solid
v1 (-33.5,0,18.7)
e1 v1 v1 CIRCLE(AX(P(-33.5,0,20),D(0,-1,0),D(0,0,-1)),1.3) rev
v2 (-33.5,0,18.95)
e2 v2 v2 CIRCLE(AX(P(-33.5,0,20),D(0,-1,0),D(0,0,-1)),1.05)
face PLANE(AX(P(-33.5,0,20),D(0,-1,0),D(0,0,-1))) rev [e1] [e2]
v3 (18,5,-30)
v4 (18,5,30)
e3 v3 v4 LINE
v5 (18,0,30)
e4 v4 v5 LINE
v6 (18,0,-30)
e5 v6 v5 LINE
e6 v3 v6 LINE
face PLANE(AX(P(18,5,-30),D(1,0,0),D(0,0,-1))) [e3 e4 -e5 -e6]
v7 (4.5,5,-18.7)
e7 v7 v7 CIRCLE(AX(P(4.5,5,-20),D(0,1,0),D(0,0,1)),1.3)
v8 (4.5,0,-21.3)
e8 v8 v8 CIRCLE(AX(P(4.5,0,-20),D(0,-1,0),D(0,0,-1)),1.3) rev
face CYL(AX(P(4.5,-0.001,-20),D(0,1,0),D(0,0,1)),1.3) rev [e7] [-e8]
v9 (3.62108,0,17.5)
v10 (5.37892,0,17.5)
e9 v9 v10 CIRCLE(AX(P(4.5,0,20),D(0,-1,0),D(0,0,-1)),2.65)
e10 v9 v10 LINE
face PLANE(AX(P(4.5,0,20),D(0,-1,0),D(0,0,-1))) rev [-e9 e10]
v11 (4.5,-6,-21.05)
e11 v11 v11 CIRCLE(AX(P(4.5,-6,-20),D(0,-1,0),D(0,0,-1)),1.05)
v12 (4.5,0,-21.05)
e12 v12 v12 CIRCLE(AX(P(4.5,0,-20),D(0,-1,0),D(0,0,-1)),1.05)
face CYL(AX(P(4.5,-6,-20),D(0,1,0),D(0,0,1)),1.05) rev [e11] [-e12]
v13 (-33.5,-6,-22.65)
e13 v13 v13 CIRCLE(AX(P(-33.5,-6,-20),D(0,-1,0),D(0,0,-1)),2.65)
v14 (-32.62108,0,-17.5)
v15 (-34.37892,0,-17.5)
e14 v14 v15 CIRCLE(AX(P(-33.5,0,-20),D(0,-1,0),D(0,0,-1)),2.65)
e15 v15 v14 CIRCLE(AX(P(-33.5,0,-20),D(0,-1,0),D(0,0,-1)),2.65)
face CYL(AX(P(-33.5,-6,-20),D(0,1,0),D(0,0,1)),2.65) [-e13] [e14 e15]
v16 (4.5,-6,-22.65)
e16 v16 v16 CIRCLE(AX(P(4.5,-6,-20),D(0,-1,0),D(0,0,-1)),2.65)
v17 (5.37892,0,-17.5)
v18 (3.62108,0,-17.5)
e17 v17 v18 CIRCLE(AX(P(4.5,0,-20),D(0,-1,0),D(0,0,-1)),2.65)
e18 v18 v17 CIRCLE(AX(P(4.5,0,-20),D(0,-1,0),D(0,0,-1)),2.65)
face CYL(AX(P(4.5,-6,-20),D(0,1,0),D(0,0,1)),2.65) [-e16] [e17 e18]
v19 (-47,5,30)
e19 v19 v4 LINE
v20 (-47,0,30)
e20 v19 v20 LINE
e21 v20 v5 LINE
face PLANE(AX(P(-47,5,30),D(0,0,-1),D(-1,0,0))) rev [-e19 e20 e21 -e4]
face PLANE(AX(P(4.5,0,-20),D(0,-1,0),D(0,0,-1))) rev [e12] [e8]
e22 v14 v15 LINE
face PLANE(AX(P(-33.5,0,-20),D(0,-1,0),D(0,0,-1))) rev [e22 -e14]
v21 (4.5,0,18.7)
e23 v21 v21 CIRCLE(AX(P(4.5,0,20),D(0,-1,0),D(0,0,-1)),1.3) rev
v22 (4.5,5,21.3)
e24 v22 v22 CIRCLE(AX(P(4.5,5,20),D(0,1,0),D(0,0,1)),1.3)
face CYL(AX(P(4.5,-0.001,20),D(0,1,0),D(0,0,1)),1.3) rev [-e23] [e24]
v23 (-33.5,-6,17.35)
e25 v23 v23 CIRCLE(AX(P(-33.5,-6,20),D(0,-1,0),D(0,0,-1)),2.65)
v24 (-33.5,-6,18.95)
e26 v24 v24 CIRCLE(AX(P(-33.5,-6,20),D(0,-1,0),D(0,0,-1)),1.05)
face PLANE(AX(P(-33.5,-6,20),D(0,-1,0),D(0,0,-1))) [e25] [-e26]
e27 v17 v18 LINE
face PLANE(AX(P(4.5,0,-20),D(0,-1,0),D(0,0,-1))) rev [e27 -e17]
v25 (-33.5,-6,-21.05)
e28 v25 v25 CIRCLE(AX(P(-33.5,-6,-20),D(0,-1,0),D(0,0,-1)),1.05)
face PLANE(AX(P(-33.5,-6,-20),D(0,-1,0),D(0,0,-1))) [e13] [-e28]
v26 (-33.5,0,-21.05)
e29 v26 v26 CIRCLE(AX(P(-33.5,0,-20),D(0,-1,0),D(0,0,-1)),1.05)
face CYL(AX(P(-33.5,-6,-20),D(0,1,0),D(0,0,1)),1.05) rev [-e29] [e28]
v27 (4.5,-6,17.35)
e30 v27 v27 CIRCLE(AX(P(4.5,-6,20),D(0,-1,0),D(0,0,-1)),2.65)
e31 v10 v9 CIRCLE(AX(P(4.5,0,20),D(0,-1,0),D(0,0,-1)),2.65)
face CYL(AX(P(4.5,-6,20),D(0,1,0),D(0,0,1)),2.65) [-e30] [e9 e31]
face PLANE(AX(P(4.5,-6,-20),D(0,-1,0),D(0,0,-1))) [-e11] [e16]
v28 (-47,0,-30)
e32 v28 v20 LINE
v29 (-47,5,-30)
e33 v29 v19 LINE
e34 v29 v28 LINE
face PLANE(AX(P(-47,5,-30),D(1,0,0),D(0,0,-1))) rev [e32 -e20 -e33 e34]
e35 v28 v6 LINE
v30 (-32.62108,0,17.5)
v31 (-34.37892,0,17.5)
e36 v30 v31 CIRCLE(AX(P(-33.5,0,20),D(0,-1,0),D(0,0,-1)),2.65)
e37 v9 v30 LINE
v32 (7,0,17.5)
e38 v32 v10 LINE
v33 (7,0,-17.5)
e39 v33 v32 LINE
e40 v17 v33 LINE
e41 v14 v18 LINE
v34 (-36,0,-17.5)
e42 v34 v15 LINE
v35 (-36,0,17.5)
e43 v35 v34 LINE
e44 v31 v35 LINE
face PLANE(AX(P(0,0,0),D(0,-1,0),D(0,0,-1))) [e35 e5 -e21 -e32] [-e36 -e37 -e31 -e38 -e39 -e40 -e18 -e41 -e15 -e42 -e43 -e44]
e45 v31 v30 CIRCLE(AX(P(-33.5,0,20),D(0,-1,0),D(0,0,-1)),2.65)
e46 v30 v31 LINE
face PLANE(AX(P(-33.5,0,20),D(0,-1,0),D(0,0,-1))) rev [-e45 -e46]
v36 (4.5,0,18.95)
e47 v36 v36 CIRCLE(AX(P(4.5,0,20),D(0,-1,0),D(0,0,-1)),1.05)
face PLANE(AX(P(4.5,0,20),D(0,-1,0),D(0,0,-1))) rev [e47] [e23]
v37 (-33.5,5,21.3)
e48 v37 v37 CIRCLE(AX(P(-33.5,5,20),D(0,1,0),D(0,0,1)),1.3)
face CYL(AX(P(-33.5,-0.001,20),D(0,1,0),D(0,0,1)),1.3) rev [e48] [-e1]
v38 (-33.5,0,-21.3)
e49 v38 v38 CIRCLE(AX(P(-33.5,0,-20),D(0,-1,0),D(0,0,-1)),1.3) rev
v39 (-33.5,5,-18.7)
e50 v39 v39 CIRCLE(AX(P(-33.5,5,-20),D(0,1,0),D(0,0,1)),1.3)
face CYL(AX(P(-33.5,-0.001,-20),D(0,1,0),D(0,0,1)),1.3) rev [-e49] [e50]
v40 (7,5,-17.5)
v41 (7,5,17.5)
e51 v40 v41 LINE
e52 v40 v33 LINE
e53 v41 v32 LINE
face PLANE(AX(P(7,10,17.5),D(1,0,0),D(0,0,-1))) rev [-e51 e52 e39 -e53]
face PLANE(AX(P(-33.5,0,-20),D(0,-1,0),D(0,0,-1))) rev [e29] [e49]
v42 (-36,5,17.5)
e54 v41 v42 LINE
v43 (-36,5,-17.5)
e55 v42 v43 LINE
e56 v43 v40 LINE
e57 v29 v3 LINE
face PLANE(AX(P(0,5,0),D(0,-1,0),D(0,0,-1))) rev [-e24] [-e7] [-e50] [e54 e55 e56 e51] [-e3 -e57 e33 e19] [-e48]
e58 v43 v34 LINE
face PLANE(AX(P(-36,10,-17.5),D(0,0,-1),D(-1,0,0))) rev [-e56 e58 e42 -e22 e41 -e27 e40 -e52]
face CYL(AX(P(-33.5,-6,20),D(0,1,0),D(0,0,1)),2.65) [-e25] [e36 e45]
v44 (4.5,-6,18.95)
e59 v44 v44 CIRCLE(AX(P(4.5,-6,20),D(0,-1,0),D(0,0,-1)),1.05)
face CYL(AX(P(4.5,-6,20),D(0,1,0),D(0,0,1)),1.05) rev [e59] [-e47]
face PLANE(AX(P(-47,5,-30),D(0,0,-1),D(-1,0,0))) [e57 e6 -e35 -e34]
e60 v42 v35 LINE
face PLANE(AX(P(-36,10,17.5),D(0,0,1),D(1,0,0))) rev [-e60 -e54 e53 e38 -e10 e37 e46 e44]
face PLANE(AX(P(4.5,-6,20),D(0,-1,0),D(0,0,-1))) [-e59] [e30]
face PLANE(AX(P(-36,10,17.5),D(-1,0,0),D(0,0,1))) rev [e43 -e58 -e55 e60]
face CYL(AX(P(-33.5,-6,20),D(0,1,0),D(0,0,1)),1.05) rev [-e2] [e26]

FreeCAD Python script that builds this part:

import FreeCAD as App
import Part
import Sketcher

V = App.Vector

doc = App.newDocument("Part")
body = doc.addObject("PartDesign::Body", "Body")

sketch1 = body.newObject("Sketcher::SketchObject", "Sketch")
sketch1.AttachmentSupport = (doc.getObject("XZ_Plane"), [""])
sketch1.MapMode = "FlatFace"
sketch1.addGeometry([
    Part.LineSegment(V(-47, -30, 0), V(-47, 30, 0)),
    Part.LineSegment(V(-47, 30, 0), V(18, 30, 0)),
    Part.LineSegment(V(18, 30, 0), V(18, -30, 0)),
    Part.LineSegment(V(18, -30, 0), V(-47, -30, 0)),
], False)
sketch1.addConstraint([
    Sketcher.Constraint("Coincident", 0, 2, 1, 1),
    Sketcher.Constraint("Coincident", 1, 2, 2, 1),
    Sketcher.Constraint("Coincident", 2, 2, 3, 1),
    Sketcher.Constraint("Coincident", 3, 2, 0, 1),
    Sketcher.Constraint("Vertical", 0),
    Sketcher.Constraint("Horizontal", 1),
    Sketcher.Constraint("Vertical", 2),
    Sketcher.Constraint("Horizontal", 3),
    Sketcher.Constraint("DistanceX", 1, 1, 1, 2, 65.0),
    Sketcher.Constraint("DistanceY", 0, 1, 0, 2, 60.0),
    Sketcher.Constraint("DistanceX", 0, 2, -1, 1, 47.0),
    Sketcher.Constraint("DistanceY", -1, 1, 0, 2, 30.0),
])
pad1 = body.newObject("PartDesign::Pad", "Pad")
pad1.Profile = sketch1
pad1.Length = 5
pad1.Reversed = True

sketch2 = body.newObject("Sketcher::SketchObject", "Sketch001")
sketch2.AttachmentSupport = (doc.getObject("XZ_Plane"), [""])
sketch2.MapMode = "FlatFace"
sketch2.addGeometry([
    Part.LineSegment(V(-36, 17.5, 0), V(-36, -17.5, 0)),
    Part.LineSegment(V(-36, -17.5, 0), V(7, -17.5, 0)),
    Part.LineSegment(V(7, -17.5, 0), V(7, 17.5, 0)),
    Part.LineSegment(V(7, 17.5, 0), V(-36, 17.5, 0)),
], False)
sketch2.addConstraint([
    Sketcher.Constraint("Coincident", 0, 2, 1, 1),
    Sketcher.Constraint("Coincident", 1, 2, 2, 1),
    Sketcher.Constraint("Coincident", 2, 2, 3, 1),
    Sketcher.Constraint("Coincident", 3, 2, 0, 1),
    Sketcher.Constraint("Vertical", 0),
    Sketcher.Constraint("Horizontal", 1),
    Sketcher.Constraint("Vertical", 2),
    Sketcher.Constraint("Horizontal", 3),
    Sketcher.Constraint("DistanceX", 1, 1, 1, 2, 43.0),
    Sketcher.Constraint("DistanceY", 0, 2, 0, 1, 35.0),
    Sketcher.Constraint("DistanceX", 0, 2, -1, 1, 36.0),
    Sketcher.Constraint("DistanceY", 0, 2, -1, 1, 17.5),
])
pocket1 = body.newObject("PartDesign::Pocket", "Pocket")
pocket1.Profile = sketch2
pocket1.Length = 10

sketch3 = body.newObject("Sketcher::SketchObject", "Sketch002")
sketch3.AttachmentSupport = (doc.getObject("XZ_Plane"), [""])
sketch3.MapMode = "FlatFace"
sketch3.AttachmentOffset = App.Placement(V(0, 0, -5), App.Rotation())
sketch3.addGeometry(Part.Circle(V(-33.5, -20, 0), V(0, 0, 1), 1.3), False)
sketch3.addConstraint([
    Sketcher.Constraint("Diameter", 0, 2.6),
    Sketcher.Constraint("DistanceY", 0, 3, -1, 1, 20.0),
    Sketcher.Constraint("DistanceX", 0, 3, -1, 1, 33.5),
])
pocket2 = body.newObject("PartDesign::Pocket", "Pocket001")
pocket2.Profile = sketch3
pocket2.Type = "UpToFirst"
pocket2.Reversed = True

sketch4 = body.newObject("Sketcher::SketchObject", "Sketch003")
sketch4.AttachmentSupport = (doc.getObject("XZ_Plane"), [""])
sketch4.MapMode = "FlatFace"
sketch4.AttachmentOffset = App.Placement(V(0, 0, -5), App.Rotation())
sketch4.addGeometry(Part.Circle(V(4.5, -20, 0), V(0, 0, 1), 1.3), False)
sketch4.addConstraint([
    Sketcher.Constraint("Diameter", 0, 2.6),
    Sketcher.Constraint("DistanceY", 0, 3, -1, 1, 20.0),
    Sketcher.Constraint("DistanceX", -1, 1, 0, 3, 4.5),
])
pocket3 = body.newObject("PartDesign::Pocket", "Pocket002")
pocket3.Profile = sketch4
pocket3.Type = "UpToFirst"
pocket3.Reversed = True

sketch5 = body.newObject("Sketcher::SketchObject", "Sketch004")
sketch5.AttachmentSupport = (doc.getObject("XZ_Plane"), [""])
sketch5.MapMode = "FlatFace"
sketch5.AttachmentOffset = App.Placement(V(0, 0, -5), App.Rotation())
sketch5.addGeometry(Part.Circle(V(4.5, 20, 0), V(0, 0, 1), 1.3), False)
sketch5.addConstraint([
    Sketcher.Constraint("Diameter", 0, 2.6),
    Sketcher.Constraint("DistanceY", -1, 1, 0, 3, 20.0),
    Sketcher.Constraint("DistanceX", -1, 1, 0, 3, 4.5),
])
pocket4 = body.newObject("PartDesign::Pocket", "Pocket003")
pocket4.Profile = sketch5
pocket4.Type = "UpToFirst"
pocket4.Reversed = True

sketch6 = body.newObject("Sketcher::SketchObject", "Sketch005")
sketch6.AttachmentSupport = (doc.getObject("XZ_Plane"), [""])
sketch6.MapMode = "FlatFace"
sketch6.AttachmentOffset = App.Placement(V(0, 0, -5), App.Rotation())
sketch6.addGeometry(Part.Circle(V(-33.5, 20, 0), V(0, 0, 1), 1.3), False)
sketch6.addConstraint([
    Sketcher.Constraint("Diameter", 0, 2.6),
    Sketcher.Constraint("DistanceY", -1, 1, 0, 3, 20.0),
    Sketcher.Constraint("DistanceX", 0, 3, -1, 1, 33.5),
])
pocket5 = body.newObject("PartDesign::Pocket", "Pocket004")
pocket5.Profile = sketch6
pocket5.Type = "UpToFirst"
pocket5.Reversed = True

sketch7 = body.newObject("Sketcher::SketchObject", "Sketch006")
sketch7.AttachmentSupport = (doc.getObject("XZ_Plane"), [""])
sketch7.MapMode = "FlatFace"
sketch7.addGeometry([
    Part.Circle(V(-33.5, 20, 0), V(0, 0, 1), 2.65),
    Part.Circle(V(-33.5, 20, 0), V(0, 0, 1), 1.05),
    Part.Circle(V(-33.5, -20, 0), V(0, 0, 1), 2.65),
    Part.Circle(V(-33.5, -20, 0), V(0, 0, 1), 1.05),
    Part.Circle(V(4.5, 20, 0), V(0, 0, 1), 2.65),
    Part.Circle(V(4.5, 20, 0), V(0, 0, 1), 1.05),
    Part.Circle(V(4.5, -20, 0), V(0, 0, 1), 2.65),
    Part.Circle(V(4.5, -20, 0), V(0, 0, 1), 1.05),
], False)
sketch7.addConstraint([
    Sketcher.Constraint("Coincident", 1, 3, 0, 3),
    Sketcher.Constraint("Coincident", 3, 3, 2, 3),
    Sketcher.Constraint("Coincident", 5, 3, 4, 3),
    Sketcher.Constraint("Coincident", 7, 3, 6, 3),
    Sketcher.Constraint("Equal", 0, 2),
    Sketcher.Constraint("Equal", 1, 3),
    Sketcher.Constraint("Equal", 2, 4),
    Sketcher.Constraint("Equal", 3, 5),
    Sketcher.Constraint("Equal", 4, 6),
    Sketcher.Constraint("Equal", 5, 7),
    Sketcher.Constraint("Symmetric", 0, 3, 2, 3, -1),
    Sketcher.Constraint("Symmetric", 4, 3, 6, 3, -1),
    Sketcher.Constraint("Horizontal", 1, 3, 4, 3),
    Sketcher.Constraint("Diameter", 0, 5.3),
    Sketcher.Constraint("Diameter", 1, 2.1),
    Sketcher.Constraint("DistanceY", -1, 1, 0, 3, 20.0),
    Sketcher.Constraint("DistanceX", 0, 3, 4, 3, 38.0),
    Sketcher.Constraint("DistanceX", 0, 3, -1, 1, 33.5),
])
pad2 = body.newObject("PartDesign::Pad", "Pad001")
pad2.Profile = sketch7
pad2.Length = 6

doc.recompute()
